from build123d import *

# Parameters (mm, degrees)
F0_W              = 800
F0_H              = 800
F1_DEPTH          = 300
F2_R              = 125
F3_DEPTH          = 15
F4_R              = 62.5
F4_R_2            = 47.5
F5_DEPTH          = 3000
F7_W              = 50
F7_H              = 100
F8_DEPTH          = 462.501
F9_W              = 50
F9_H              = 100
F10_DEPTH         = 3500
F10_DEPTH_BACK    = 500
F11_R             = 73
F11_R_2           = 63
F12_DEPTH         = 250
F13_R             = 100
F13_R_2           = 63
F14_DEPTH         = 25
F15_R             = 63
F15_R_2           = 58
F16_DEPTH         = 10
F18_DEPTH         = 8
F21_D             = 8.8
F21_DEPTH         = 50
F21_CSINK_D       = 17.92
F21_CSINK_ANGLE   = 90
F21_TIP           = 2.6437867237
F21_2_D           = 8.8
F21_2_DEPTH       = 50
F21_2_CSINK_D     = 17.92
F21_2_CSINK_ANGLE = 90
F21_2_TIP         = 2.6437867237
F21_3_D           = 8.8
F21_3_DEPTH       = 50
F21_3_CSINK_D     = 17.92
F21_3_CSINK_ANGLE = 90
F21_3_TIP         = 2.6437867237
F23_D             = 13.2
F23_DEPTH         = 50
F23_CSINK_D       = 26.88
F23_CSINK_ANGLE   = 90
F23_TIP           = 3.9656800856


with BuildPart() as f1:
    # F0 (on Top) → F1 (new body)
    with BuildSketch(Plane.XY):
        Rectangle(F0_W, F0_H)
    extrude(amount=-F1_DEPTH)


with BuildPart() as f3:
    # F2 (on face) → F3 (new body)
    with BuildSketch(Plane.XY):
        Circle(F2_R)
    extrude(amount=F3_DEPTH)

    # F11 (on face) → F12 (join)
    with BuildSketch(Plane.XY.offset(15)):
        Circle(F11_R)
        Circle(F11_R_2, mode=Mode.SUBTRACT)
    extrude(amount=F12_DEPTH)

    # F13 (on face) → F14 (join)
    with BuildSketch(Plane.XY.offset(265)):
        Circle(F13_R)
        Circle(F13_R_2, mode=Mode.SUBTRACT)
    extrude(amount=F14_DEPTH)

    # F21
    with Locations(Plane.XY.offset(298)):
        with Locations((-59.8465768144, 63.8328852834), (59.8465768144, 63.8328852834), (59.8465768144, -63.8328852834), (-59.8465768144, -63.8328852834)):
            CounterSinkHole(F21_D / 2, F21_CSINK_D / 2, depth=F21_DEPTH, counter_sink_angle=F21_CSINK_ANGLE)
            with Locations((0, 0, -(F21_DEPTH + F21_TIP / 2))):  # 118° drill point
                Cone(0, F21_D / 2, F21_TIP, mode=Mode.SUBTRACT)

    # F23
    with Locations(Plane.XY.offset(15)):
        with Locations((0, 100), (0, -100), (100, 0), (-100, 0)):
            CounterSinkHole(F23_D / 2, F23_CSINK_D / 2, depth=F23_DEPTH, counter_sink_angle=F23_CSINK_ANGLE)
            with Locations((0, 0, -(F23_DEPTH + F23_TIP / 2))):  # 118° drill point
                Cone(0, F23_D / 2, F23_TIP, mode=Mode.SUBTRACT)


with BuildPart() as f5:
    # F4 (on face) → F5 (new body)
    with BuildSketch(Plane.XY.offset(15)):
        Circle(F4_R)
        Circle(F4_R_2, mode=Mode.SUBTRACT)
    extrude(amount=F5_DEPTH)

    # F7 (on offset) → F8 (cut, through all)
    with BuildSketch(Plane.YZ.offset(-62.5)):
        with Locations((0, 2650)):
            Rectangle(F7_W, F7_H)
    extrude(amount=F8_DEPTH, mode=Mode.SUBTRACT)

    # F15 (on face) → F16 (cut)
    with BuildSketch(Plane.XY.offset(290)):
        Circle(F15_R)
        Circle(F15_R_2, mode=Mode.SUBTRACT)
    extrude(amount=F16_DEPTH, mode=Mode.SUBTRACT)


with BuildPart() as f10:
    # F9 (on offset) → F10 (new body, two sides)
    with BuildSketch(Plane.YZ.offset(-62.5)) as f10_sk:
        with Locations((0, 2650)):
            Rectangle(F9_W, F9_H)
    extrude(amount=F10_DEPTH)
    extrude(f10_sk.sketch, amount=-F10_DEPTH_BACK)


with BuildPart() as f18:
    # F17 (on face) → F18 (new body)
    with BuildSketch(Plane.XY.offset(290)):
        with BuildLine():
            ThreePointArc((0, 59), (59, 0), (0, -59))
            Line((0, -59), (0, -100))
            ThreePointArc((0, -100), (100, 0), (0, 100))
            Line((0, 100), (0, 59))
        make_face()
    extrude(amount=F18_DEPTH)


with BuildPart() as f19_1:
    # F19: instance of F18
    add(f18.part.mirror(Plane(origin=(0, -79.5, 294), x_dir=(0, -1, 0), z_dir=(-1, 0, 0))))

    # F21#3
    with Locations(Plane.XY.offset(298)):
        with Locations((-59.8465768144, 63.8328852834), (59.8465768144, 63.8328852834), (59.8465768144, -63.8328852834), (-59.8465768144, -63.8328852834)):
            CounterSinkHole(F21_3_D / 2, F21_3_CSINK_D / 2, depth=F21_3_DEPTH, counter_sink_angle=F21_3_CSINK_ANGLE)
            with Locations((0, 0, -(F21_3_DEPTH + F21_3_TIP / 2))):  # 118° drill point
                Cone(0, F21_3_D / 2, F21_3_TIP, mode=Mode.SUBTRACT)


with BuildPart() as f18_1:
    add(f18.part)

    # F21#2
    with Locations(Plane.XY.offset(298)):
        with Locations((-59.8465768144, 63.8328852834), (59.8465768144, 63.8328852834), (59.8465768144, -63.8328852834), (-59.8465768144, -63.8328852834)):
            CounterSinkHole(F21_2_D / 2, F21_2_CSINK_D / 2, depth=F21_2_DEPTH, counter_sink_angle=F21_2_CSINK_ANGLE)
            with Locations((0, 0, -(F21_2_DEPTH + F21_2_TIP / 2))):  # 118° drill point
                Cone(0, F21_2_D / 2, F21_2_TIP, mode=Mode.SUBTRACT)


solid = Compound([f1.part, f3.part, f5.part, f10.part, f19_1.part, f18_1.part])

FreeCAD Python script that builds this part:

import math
import FreeCAD as App
import Part
import Sketcher
from FreeCAD import Vector
Q = App.Units.Quantity


def add_polygon(sketch, points):
    """Adds a closed chain of lines whose ends are joined by coincident constraints."""
    first, n = sketch.GeometryCount, len(points)
    for a, b in zip(points, points[1:] + points[:1]):
        sketch.addGeometry(Part.LineSegment(App.Vector(*a, 0), App.Vector(*b, 0)), False)
    for i in range(n):
        sketch.addConstraint(Sketcher.Constraint("Coincident", first + i, 2, first + (i + 1) % n, 1))

doc = App.newDocument("Part")
body = doc.addObject("PartDesign::Body", "Body")

sketch1 = body.newObject("Sketcher::SketchObject", "Sketch")
sketch1.AttachmentSupport = (doc.getObject("XY_Plane"), [""])
sketch1.MapMode = "FlatFace"
add_polygon(sketch1, [(-400, 400), (-400, -400), (400, -400), (400, 400)])
sketch1.addConstraint([
    Sketcher.Constraint("Vertical", 0),
    Sketcher.Constraint("Horizontal", 1),
    Sketcher.Constraint("Vertical", 2),
    Sketcher.Constraint("Horizontal", 3),
    Sketcher.Constraint("Symmetric", 0, 2, 2, 2, -1, 1),
    Sketcher.Constraint("Equal", 3, 0),
    Sketcher.Constraint("DistanceX", 1, 1, 1, 2, Q("800 mm")),
])
pad1 = body.newObject("PartDesign::Pad", "Pad")
pad1.Profile = sketch1
pad1.Length = 300
pad1.Reversed = True
body2 = doc.addObject("PartDesign::Body", "Body001")

sketch2 = body2.newObject("Sketcher::SketchObject", "Sketch001")
sketch2.AttachmentSupport = (doc.getObject("XY_Plane001"), [""])
sketch2.MapMode = "FlatFace"
sketch2.addGeometry(Part.Circle(Vector(0, 0, 0), Vector(0, 0, 1), 125), False)
sketch2.addConstraint([
    Sketcher.Constraint("Coincident", 0, 3, -1, 1),
    Sketcher.Constraint("Diameter", 0, Q("250 mm")),
])
pad2 = body2.newObject("PartDesign::Pad", "Pad001")
pad2.Profile = sketch2
pad2.Length = 15

sketch3 = body2.newObject("Sketcher::SketchObject", "Sketch002")
sketch3.AttachmentSupport = (doc.getObject("XY_Plane001"), [""])
sketch3.MapMode = "FlatFace"
sketch3.AttachmentOffset = App.Placement(Vector(0, 0, 15), App.Rotation())
sketch3.addGeometry([
    Part.Circle(Vector(0, 0, 0), Vector(0, 0, 1), 73),
    Part.Circle(Vector(0, 0, 0), Vector(0, 0, 1), 63),
], False)
sketch3.addConstraint([
    Sketcher.Constraint("Coincident", 0, 3, -1, 1),
    Sketcher.Constraint("Coincident", 1, 3, -1, 1),
    Sketcher.Constraint("Diameter", 0, Q("146 mm")),
    Sketcher.Constraint("Diameter", 1, Q("126 mm")),
])
pad3 = body2.newObject("PartDesign::Pad", "Pad002")
pad3.Profile = sketch3
pad3.Length = 250

sketch4 = body2.newObject("Sketcher::SketchObject", "Sketch003")
sketch4.AttachmentSupport = (doc.getObject("XY_Plane001"), [""])
sketch4.MapMode = "FlatFace"
sketch4.AttachmentOffset = App.Placement(Vector(0, 0, 265), App.Rotation())
sketch4.addGeometry([
    Part.Circle(Vector(0, 0, 0), Vector(0, 0, 1), 100),
    Part.Circle(Vector(0, 0, 0), Vector(0, 0, 1), 63),
], False)
sketch4.addConstraint([
    Sketcher.Constraint("Coincident", 0, 3, -1, 1),
    Sketcher.Constraint("Coincident", 1, 3, -1, 1),
    Sketcher.Constraint("Diameter", 0, Q("200 mm")),
    Sketcher.Constraint("Diameter", 1, Q("126 mm")),
])
pad4 = body2.newObject("PartDesign::Pad", "Pad003")
pad4.Profile = sketch4
pad4.Length = 25

sketch5 = body2.newObject("Sketcher::SketchObject", "Sketch004")
sketch5.AttachmentSupport = (doc.getObject("XY_Plane001"), [""])
sketch5.MapMode = "FlatFace"
sketch5.AttachmentOffset = App.Placement(Vector(0, 0, 298), App.Rotation())
sketch5.addGeometry([
    Part.Circle(Vector(-59.8, 63.8, 0), Vector(0, 0, 1), 4.4),
    Part.Circle(Vector(59.8, 63.8, 0), Vector(0, 0, 1), 4.4),
    Part.Circle(Vector(59.8, -63.8, 0), Vector(0, 0, 1), 4.4),
    Part.Circle(Vector(-59.8, -63.8, 0), Vector(0, 0, 1), 4.4),
], False)
sketch5.addConstraint([
    Sketcher.Constraint("Equal", 0, 1),
    Sketcher.Constraint("Equal", 1, 2),
    Sketcher.Constraint("Equal", 2, 3),
    Sketcher.Constraint("Symmetric", 0, 3, 2, 3, -1, 1),
    Sketcher.Constraint("Symmetric", 1, 3, 3, 3, -1, 1),
    Sketcher.Constraint("Symmetric", 0, 3, 1, 3, -2),
    Sketcher.Constraint("Diameter", 0, Q("8.8 mm")),
    Sketcher.Constraint("DistanceY", 2, 3, 1, 3, Q("127.665771 mm")),
    Sketcher.Constraint("DistanceX", 0, 3, -1, 1, Q("59.846577 mm")),
])
doc.recompute()
hole = body2.newObject("PartDesign::Hole", "Hole")
hole.Profile = sketch5
hole.ThreadType = "None"
hole.Diameter = 8.8
hole.DepthType = "Dimension"
hole.Depth = 50
hole.DrillPoint = "Angled"
hole.DrillPointAngle = 118
hole.HoleCutType = "Countersink"
hole.HoleCutDiameter = 17.92
hole.HoleCutCountersinkAngle = 90

sketch6 = body2.newObject("Sketcher::SketchObject", "Sketch005")
sketch6.AttachmentSupport = (doc.getObject("XY_Plane001"), [""])
sketch6.MapMode = "FlatFace"
sketch6.AttachmentOffset = App.Placement(Vector(0, 0, 15), App.Rotation())
sketch6.addGeometry([
    Part.Circle(Vector(0, 100, 0), Vector(0, 0, 1), 7),
    Part.Circle(Vector(0, -100, 0), Vector(0, 0, 1), 7),
    Part.Circle(Vector(100, 0, 0), Vector(0, 0, 1), 7),
    Part.Circle(Vector(-100, 0, 0), Vector(0, 0, 1), 7),
], False)
sketch6.addConstraint([
    Sketcher.Constraint("Equal", 0, 1),
    Sketcher.Constraint("Equal", 1, 2),
    Sketcher.Constraint("Equal", 2, 3),
    Sketcher.Constraint("Symmetric", 0, 3, 1, 3, -1, 1),
    Sketcher.Constraint("Symmetric", 2, 3, 3, 3, -1, 1),
    Sketcher.Constraint("PointOnObject", 0, 3, -2),
    Sketcher.Constraint("PointOnObject", 2, 3, -1),
    Sketcher.Constraint("Diameter", 0, Q("13.2 mm")),
    Sketcher.Constraint("DistanceY", -1, 1, 0, 3, Q("100 mm")),
    Sketcher.Constraint("DistanceX", -1, 1, 2, 3, Q("100 mm")),
])
doc.recompute()
hole2 = body2.newObject("PartDesign::Hole", "Hole001")
hole2.Profile = sketch6
hole2.ThreadType = "None"
hole2.Diameter = 13.2
hole2.DepthType = "Dimension"
hole2.Depth = 50
hole2.DrillPoint = "Angled"
hole2.DrillPointAngle = 118
hole2.HoleCutType = "Countersink"
hole2.HoleCutDiameter = 26.88
hole2.HoleCutCountersinkAngle = 90
body3 = doc.addObject("PartDesign::Body", "Body002")

sketch7 = body3.newObject("Sketcher::SketchObject", "Sketch006")
sketch7.AttachmentSupport = (doc.getObject("XY_Plane002"), [""])
sketch7.MapMode = "FlatFace"
sketch7.AttachmentOffset = App.Placement(Vector(0, 0, 15), App.Rotation())
sketch7.addGeometry([
    Part.Circle(Vector(0, 0, 0), Vector(0, 0, 1), 62),
    Part.Circle(Vector(0, 0, 0), Vector(0, 0, 1), 48),
], False)
sketch7.addConstraint([
    Sketcher.Constraint("Coincident", 0, 3, -1, 1),
    Sketcher.Constraint("Coincident", 1, 3, -1, 1),
    Sketcher.Constraint("Diameter", 0, Q("125 mm")),
    Sketcher.Constraint("Diameter", 1, Q("95 mm")),
])
pad5 = body3.newObject("PartDesign::Pad", "Pad004")
pad5.Profile = sketch7
pad5.Length = 3000

sketch8 = body3.newObject("Sketcher::SketchObject", "Sketch007")
sketch8.AttachmentSupport = (doc.getObject("YZ_Plane002"), [""])
sketch8.MapMode = "FlatFace"
sketch8.AttachmentOffset = App.Placement(Vector(0, 0, -62.5), App.Rotation())
add_polygon(sketch8, [(-25, 2700), (-25, 2600), (25, 2600), (25, 2700)])
sketch8.addConstraint([
    Sketcher.Constraint("Vertical", 0),
    Sketcher.Constraint("Horizontal", 1),
    Sketcher.Constraint("Vertical", 2),
    Sketcher.Constraint("Horizontal", 3),
    Sketcher.Constraint("DistanceX", 1, 1, 1, 2, Q("50 mm")),
    Sketcher.Constraint("DistanceY", 0, 2, 0, 1, Q("100 mm")),
    Sketcher.Constraint("DistanceX", 0, 2, -1, 1, Q("25 mm")),
    Sketcher.Constraint("DistanceY", -1, 1, 0, 2, Q("2600 mm")),
])
pocket1 = body3.newObject("PartDesign::Pocket", "Pocket")
pocket1.Profile = sketch8
pocket1.Type = "ThroughAll"
pocket1.Reversed = True

sketch9 = body3.newObject("Sketcher::SketchObject", "Sketch008")
sketch9.AttachmentSupport = (doc.getObject("XY_Plane002"), [""])
sketch9.MapMode = "FlatFace"
sketch9.AttachmentOffset = App.Placement(Vector(0, 0, 290), App.Rotation())
sketch9.addGeometry([
    Part.Circle(Vector(0, 0, 0), Vector(0, 0, 1), 63),
    Part.Circle(Vector(0, 0, 0), Vector(0, 0, 1), 58),
], False)
sketch9.addConstraint([
    Sketcher.Constraint("Coincident", 0, 3, -1, 1),
    Sketcher.Constraint("Coincident", 1, 3, -1, 1),
    Sketcher.Constraint("Diameter", 0, Q("126 mm")),
    Sketcher.Constraint("Diameter", 1, Q("116 mm")),
])
pocket2 = body3.newObject("PartDesign::Pocket", "Pocket001")
pocket2.Profile = sketch9
pocket2.Length = 10
pocket2.Reversed = True
body4 = doc.addObject("PartDesign::Body", "Body003")

sketch10 = body4.newObject("Sketcher::SketchObject", "Sketch009")
sketch10.AttachmentSupport = (doc.getObject("YZ_Plane003"), [""])
sketch10.MapMode = "FlatFace"
sketch10.AttachmentOffset = App.Placement(Vector(0, 0, -62.5), App.Rotation())
add_polygon(sketch10, [(-25, 2700), (-25, 2600), (25, 2600), (25, 2700)])
sketch10.addConstraint([
    Sketcher.Constraint("Vertical", 0),
    Sketcher.Constraint("Horizontal", 1),
    Sketcher.Constraint("Vertical", 2),
    Sketcher.Constraint("Horizontal", 3),
    Sketcher.Constraint("DistanceX", 1, 1, 1, 2, Q("50 mm")),
    Sketcher.Constraint("DistanceY", 0, 2, 0, 1, Q("100 mm")),
    Sketcher.Constraint("DistanceX", 0, 2, -1, 1, Q("25 mm")),
    Sketcher.Constraint("DistanceY", -1, 1, 0, 2, Q("2600 mm")),
])
pad6 = body4.newObject("PartDesign::Pad", "Pad005")
pad6.Profile = sketch10
pad6.Type = "TwoLengths"
pad6.Length = 3500
pad6.Length2 = 500
body5 = doc.addObject("PartDesign::Body", "Body004")

sketch11 = body5.newObject("Sketcher::SketchObject", "Sketch010")
sketch11.AttachmentSupport = (doc.getObject("XY_Plane004"), [""])
sketch11.MapMode = "FlatFace"
sketch11.AttachmentOffset = App.Placement(Vector(0, 0, 290), App.Rotation())
sketch11.addGeometry([
    Part.ArcOfCircle(Part.Circle(Vector(0, 0, 0), Vector(0, 0, 1), 59), math.radians(-90), math.radians(90)),
    Part.LineSegment(Vector(0, -59, 0), Vector(0, -100, 0)),
    Part.ArcOfCircle(Part.Circle(Vector(0, 0, 0), Vector(0, 0, 1), 100), math.radians(-90), math.radians(90)),
    Part.LineSegment(Vector(0, 100, 0), Vector(0, 59, 0)),
], False)
sketch11.addConstraint([
    Sketcher.Constraint("Coincident", 0, 1, 1, 1),
    Sketcher.Constraint("Coincident", 1, 2, 2, 1),
    Sketcher.Constraint("Coincident", 2, 2, 3, 1),
    Sketcher.Constraint("Coincident", 3, 2, 0, 2),
    Sketcher.Constraint("Vertical", 1),
    Sketcher.Constraint("Vertical", 3),
    Sketcher.Constraint("Coincident", 0, 3, -1, 1),
    Sketcher.Constraint("Coincident", 2, 3, -1, 1),
    Sketcher.Constraint("PointOnObject", 0, 1, -2),
    Sketcher.Constraint("PointOnObject", 2, 2, -2),
    Sketcher.Constraint("Radius", 0, Q("59 mm")),
    Sketcher.Constraint("Radius", 2, Q("100 mm")),
])
pad7 = body5.newObject("PartDesign::Pad", "Pad006")
pad7.Profile = sketch11
pad7.Length = 8
body6 = doc.addObject("PartDesign::Body", "Body005")
doc.recompute()

mirroring = doc.addObject("Part::Mirroring", "Mirroring")
mirroring.Source = body5
mirroring.Base = Vector(0, -79.5, 294)
mirroring.Normal = Vector(-1, 0, 0)
body6.BaseFeature = mirroring
doc.recompute()

sketch12 = body6.newObject("Sketcher::SketchObject", "Sketch011")
sketch12.AttachmentSupport = (doc.getObject("XY_Plane005"), [""])
sketch12.MapMode = "FlatFace"
sketch12.AttachmentOffset = App.Placement(Vector(0, 0, 298), App.Rotation())
sketch12.addGeometry([
    Part.Circle(Vector(-59.8, 63.8, 0), Vector(0, 0, 1), 4.4),
    Part.Circle(Vector(59.8, 63.8, 0), Vector(0, 0, 1), 4.4),
    Part.Circle(Vector(59.8, -63.8, 0), Vector(0, 0, 1), 4.4),
    Part.Circle(Vector(-59.8, -63.8, 0), Vector(0, 0, 1), 4.4),
], False)
sketch12.addConstraint([
    Sketcher.Constraint("Equal", 0, 1),
    Sketcher.Constraint("Equal", 1, 2),
    Sketcher.Constraint("Equal", 2, 3),
    Sketcher.Constraint("Symmetric", 0, 3, 2, 3, -1, 1),
    Sketcher.Constraint("Symmetric", 1, 3, 3, 3, -1, 1),
    Sketcher.Constraint("Symmetric", 0, 3, 1, 3, -2),
    Sketcher.Constraint("Diameter", 0, Q("8.8 mm")),
    Sketcher.Constraint("DistanceY", 2, 3, 1, 3, Q("127.665771 mm")),
    Sketcher.Constraint("DistanceX", 0, 3, -1, 1, Q("59.846577 mm")),
])
doc.recompute()
hole3 = body6.newObject("PartDesign::Hole", "Hole002")
hole3.Profile = sketch12
hole3.ThreadType = "None"
hole3.Diameter = 8.8
hole3.DepthType = "Dimension"
hole3.Depth = 50
hole3.DrillPoint = "Angled"
hole3.DrillPointAngle = 118
hole3.HoleCutType = "Countersink"
hole3.HoleCutDiameter = 17.92
hole3.HoleCutCountersinkAngle = 90

sketch13 = body5.newObject("Sketcher::SketchObject", "Sketch012")
sketch13.AttachmentSupport = (doc.getObject("XY_Plane004"), [""])
sketch13.MapMode = "FlatFace"
sketch13.AttachmentOffset = App.Placement(Vector(0, 0, 298), App.Rotation())
sketch13.addGeometry([
    Part.Circle(Vector(-59.8, 63.8, 0), Vector(0, 0, 1), 4.4),
    Part.Circle(Vector(59.8, 63.8, 0), Vector(0, 0, 1), 4.4),
    Part.Circle(Vector(59.8, -63.8, 0), Vector(0, 0, 1), 4.4),
    Part.Circle(Vector(-59.8, -63.8, 0), Vector(0, 0, 1), 4.4),
], False)
sketch13.addConstraint([
    Sketcher.Constraint("Equal", 0, 1),
    Sketcher.Constraint("Equal", 1, 2),
    Sketcher.Constraint("Equal", 2, 3),
    Sketcher.Constraint("Symmetric", 0, 3, 2, 3, -1, 1),
    Sketcher.Constraint("Symmetric", 1, 3, 3, 3, -1, 1),
    Sketcher.Constraint("Symmetric", 0, 3, 1, 3, -2),
    Sketcher.Constraint("Diameter", 0, Q("8.8 mm")),
    Sketcher.Constraint("DistanceY", 2, 3, 1, 3, Q("127.665771 mm")),
    Sketcher.Constraint("DistanceX", 0, 3, -1, 1, Q("59.846577 mm")),
])
doc.recompute()
hole4 = body5.newObject("PartDesign::Hole", "Hole003")
hole4.Profile = sketch13
hole4.ThreadType = "None"
hole4.Diameter = 8.8
hole4.DepthType = "Dimension"
hole4.Depth = 50
hole4.DrillPoint = "Angled"
hole4.DrillPointAngle = 118
hole4.HoleCutType = "Countersink"
hole4.HoleCutDiameter = 17.92
hole4.HoleCutCountersinkAngle = 90
mirroring.Visibility = False

doc.recompute()
